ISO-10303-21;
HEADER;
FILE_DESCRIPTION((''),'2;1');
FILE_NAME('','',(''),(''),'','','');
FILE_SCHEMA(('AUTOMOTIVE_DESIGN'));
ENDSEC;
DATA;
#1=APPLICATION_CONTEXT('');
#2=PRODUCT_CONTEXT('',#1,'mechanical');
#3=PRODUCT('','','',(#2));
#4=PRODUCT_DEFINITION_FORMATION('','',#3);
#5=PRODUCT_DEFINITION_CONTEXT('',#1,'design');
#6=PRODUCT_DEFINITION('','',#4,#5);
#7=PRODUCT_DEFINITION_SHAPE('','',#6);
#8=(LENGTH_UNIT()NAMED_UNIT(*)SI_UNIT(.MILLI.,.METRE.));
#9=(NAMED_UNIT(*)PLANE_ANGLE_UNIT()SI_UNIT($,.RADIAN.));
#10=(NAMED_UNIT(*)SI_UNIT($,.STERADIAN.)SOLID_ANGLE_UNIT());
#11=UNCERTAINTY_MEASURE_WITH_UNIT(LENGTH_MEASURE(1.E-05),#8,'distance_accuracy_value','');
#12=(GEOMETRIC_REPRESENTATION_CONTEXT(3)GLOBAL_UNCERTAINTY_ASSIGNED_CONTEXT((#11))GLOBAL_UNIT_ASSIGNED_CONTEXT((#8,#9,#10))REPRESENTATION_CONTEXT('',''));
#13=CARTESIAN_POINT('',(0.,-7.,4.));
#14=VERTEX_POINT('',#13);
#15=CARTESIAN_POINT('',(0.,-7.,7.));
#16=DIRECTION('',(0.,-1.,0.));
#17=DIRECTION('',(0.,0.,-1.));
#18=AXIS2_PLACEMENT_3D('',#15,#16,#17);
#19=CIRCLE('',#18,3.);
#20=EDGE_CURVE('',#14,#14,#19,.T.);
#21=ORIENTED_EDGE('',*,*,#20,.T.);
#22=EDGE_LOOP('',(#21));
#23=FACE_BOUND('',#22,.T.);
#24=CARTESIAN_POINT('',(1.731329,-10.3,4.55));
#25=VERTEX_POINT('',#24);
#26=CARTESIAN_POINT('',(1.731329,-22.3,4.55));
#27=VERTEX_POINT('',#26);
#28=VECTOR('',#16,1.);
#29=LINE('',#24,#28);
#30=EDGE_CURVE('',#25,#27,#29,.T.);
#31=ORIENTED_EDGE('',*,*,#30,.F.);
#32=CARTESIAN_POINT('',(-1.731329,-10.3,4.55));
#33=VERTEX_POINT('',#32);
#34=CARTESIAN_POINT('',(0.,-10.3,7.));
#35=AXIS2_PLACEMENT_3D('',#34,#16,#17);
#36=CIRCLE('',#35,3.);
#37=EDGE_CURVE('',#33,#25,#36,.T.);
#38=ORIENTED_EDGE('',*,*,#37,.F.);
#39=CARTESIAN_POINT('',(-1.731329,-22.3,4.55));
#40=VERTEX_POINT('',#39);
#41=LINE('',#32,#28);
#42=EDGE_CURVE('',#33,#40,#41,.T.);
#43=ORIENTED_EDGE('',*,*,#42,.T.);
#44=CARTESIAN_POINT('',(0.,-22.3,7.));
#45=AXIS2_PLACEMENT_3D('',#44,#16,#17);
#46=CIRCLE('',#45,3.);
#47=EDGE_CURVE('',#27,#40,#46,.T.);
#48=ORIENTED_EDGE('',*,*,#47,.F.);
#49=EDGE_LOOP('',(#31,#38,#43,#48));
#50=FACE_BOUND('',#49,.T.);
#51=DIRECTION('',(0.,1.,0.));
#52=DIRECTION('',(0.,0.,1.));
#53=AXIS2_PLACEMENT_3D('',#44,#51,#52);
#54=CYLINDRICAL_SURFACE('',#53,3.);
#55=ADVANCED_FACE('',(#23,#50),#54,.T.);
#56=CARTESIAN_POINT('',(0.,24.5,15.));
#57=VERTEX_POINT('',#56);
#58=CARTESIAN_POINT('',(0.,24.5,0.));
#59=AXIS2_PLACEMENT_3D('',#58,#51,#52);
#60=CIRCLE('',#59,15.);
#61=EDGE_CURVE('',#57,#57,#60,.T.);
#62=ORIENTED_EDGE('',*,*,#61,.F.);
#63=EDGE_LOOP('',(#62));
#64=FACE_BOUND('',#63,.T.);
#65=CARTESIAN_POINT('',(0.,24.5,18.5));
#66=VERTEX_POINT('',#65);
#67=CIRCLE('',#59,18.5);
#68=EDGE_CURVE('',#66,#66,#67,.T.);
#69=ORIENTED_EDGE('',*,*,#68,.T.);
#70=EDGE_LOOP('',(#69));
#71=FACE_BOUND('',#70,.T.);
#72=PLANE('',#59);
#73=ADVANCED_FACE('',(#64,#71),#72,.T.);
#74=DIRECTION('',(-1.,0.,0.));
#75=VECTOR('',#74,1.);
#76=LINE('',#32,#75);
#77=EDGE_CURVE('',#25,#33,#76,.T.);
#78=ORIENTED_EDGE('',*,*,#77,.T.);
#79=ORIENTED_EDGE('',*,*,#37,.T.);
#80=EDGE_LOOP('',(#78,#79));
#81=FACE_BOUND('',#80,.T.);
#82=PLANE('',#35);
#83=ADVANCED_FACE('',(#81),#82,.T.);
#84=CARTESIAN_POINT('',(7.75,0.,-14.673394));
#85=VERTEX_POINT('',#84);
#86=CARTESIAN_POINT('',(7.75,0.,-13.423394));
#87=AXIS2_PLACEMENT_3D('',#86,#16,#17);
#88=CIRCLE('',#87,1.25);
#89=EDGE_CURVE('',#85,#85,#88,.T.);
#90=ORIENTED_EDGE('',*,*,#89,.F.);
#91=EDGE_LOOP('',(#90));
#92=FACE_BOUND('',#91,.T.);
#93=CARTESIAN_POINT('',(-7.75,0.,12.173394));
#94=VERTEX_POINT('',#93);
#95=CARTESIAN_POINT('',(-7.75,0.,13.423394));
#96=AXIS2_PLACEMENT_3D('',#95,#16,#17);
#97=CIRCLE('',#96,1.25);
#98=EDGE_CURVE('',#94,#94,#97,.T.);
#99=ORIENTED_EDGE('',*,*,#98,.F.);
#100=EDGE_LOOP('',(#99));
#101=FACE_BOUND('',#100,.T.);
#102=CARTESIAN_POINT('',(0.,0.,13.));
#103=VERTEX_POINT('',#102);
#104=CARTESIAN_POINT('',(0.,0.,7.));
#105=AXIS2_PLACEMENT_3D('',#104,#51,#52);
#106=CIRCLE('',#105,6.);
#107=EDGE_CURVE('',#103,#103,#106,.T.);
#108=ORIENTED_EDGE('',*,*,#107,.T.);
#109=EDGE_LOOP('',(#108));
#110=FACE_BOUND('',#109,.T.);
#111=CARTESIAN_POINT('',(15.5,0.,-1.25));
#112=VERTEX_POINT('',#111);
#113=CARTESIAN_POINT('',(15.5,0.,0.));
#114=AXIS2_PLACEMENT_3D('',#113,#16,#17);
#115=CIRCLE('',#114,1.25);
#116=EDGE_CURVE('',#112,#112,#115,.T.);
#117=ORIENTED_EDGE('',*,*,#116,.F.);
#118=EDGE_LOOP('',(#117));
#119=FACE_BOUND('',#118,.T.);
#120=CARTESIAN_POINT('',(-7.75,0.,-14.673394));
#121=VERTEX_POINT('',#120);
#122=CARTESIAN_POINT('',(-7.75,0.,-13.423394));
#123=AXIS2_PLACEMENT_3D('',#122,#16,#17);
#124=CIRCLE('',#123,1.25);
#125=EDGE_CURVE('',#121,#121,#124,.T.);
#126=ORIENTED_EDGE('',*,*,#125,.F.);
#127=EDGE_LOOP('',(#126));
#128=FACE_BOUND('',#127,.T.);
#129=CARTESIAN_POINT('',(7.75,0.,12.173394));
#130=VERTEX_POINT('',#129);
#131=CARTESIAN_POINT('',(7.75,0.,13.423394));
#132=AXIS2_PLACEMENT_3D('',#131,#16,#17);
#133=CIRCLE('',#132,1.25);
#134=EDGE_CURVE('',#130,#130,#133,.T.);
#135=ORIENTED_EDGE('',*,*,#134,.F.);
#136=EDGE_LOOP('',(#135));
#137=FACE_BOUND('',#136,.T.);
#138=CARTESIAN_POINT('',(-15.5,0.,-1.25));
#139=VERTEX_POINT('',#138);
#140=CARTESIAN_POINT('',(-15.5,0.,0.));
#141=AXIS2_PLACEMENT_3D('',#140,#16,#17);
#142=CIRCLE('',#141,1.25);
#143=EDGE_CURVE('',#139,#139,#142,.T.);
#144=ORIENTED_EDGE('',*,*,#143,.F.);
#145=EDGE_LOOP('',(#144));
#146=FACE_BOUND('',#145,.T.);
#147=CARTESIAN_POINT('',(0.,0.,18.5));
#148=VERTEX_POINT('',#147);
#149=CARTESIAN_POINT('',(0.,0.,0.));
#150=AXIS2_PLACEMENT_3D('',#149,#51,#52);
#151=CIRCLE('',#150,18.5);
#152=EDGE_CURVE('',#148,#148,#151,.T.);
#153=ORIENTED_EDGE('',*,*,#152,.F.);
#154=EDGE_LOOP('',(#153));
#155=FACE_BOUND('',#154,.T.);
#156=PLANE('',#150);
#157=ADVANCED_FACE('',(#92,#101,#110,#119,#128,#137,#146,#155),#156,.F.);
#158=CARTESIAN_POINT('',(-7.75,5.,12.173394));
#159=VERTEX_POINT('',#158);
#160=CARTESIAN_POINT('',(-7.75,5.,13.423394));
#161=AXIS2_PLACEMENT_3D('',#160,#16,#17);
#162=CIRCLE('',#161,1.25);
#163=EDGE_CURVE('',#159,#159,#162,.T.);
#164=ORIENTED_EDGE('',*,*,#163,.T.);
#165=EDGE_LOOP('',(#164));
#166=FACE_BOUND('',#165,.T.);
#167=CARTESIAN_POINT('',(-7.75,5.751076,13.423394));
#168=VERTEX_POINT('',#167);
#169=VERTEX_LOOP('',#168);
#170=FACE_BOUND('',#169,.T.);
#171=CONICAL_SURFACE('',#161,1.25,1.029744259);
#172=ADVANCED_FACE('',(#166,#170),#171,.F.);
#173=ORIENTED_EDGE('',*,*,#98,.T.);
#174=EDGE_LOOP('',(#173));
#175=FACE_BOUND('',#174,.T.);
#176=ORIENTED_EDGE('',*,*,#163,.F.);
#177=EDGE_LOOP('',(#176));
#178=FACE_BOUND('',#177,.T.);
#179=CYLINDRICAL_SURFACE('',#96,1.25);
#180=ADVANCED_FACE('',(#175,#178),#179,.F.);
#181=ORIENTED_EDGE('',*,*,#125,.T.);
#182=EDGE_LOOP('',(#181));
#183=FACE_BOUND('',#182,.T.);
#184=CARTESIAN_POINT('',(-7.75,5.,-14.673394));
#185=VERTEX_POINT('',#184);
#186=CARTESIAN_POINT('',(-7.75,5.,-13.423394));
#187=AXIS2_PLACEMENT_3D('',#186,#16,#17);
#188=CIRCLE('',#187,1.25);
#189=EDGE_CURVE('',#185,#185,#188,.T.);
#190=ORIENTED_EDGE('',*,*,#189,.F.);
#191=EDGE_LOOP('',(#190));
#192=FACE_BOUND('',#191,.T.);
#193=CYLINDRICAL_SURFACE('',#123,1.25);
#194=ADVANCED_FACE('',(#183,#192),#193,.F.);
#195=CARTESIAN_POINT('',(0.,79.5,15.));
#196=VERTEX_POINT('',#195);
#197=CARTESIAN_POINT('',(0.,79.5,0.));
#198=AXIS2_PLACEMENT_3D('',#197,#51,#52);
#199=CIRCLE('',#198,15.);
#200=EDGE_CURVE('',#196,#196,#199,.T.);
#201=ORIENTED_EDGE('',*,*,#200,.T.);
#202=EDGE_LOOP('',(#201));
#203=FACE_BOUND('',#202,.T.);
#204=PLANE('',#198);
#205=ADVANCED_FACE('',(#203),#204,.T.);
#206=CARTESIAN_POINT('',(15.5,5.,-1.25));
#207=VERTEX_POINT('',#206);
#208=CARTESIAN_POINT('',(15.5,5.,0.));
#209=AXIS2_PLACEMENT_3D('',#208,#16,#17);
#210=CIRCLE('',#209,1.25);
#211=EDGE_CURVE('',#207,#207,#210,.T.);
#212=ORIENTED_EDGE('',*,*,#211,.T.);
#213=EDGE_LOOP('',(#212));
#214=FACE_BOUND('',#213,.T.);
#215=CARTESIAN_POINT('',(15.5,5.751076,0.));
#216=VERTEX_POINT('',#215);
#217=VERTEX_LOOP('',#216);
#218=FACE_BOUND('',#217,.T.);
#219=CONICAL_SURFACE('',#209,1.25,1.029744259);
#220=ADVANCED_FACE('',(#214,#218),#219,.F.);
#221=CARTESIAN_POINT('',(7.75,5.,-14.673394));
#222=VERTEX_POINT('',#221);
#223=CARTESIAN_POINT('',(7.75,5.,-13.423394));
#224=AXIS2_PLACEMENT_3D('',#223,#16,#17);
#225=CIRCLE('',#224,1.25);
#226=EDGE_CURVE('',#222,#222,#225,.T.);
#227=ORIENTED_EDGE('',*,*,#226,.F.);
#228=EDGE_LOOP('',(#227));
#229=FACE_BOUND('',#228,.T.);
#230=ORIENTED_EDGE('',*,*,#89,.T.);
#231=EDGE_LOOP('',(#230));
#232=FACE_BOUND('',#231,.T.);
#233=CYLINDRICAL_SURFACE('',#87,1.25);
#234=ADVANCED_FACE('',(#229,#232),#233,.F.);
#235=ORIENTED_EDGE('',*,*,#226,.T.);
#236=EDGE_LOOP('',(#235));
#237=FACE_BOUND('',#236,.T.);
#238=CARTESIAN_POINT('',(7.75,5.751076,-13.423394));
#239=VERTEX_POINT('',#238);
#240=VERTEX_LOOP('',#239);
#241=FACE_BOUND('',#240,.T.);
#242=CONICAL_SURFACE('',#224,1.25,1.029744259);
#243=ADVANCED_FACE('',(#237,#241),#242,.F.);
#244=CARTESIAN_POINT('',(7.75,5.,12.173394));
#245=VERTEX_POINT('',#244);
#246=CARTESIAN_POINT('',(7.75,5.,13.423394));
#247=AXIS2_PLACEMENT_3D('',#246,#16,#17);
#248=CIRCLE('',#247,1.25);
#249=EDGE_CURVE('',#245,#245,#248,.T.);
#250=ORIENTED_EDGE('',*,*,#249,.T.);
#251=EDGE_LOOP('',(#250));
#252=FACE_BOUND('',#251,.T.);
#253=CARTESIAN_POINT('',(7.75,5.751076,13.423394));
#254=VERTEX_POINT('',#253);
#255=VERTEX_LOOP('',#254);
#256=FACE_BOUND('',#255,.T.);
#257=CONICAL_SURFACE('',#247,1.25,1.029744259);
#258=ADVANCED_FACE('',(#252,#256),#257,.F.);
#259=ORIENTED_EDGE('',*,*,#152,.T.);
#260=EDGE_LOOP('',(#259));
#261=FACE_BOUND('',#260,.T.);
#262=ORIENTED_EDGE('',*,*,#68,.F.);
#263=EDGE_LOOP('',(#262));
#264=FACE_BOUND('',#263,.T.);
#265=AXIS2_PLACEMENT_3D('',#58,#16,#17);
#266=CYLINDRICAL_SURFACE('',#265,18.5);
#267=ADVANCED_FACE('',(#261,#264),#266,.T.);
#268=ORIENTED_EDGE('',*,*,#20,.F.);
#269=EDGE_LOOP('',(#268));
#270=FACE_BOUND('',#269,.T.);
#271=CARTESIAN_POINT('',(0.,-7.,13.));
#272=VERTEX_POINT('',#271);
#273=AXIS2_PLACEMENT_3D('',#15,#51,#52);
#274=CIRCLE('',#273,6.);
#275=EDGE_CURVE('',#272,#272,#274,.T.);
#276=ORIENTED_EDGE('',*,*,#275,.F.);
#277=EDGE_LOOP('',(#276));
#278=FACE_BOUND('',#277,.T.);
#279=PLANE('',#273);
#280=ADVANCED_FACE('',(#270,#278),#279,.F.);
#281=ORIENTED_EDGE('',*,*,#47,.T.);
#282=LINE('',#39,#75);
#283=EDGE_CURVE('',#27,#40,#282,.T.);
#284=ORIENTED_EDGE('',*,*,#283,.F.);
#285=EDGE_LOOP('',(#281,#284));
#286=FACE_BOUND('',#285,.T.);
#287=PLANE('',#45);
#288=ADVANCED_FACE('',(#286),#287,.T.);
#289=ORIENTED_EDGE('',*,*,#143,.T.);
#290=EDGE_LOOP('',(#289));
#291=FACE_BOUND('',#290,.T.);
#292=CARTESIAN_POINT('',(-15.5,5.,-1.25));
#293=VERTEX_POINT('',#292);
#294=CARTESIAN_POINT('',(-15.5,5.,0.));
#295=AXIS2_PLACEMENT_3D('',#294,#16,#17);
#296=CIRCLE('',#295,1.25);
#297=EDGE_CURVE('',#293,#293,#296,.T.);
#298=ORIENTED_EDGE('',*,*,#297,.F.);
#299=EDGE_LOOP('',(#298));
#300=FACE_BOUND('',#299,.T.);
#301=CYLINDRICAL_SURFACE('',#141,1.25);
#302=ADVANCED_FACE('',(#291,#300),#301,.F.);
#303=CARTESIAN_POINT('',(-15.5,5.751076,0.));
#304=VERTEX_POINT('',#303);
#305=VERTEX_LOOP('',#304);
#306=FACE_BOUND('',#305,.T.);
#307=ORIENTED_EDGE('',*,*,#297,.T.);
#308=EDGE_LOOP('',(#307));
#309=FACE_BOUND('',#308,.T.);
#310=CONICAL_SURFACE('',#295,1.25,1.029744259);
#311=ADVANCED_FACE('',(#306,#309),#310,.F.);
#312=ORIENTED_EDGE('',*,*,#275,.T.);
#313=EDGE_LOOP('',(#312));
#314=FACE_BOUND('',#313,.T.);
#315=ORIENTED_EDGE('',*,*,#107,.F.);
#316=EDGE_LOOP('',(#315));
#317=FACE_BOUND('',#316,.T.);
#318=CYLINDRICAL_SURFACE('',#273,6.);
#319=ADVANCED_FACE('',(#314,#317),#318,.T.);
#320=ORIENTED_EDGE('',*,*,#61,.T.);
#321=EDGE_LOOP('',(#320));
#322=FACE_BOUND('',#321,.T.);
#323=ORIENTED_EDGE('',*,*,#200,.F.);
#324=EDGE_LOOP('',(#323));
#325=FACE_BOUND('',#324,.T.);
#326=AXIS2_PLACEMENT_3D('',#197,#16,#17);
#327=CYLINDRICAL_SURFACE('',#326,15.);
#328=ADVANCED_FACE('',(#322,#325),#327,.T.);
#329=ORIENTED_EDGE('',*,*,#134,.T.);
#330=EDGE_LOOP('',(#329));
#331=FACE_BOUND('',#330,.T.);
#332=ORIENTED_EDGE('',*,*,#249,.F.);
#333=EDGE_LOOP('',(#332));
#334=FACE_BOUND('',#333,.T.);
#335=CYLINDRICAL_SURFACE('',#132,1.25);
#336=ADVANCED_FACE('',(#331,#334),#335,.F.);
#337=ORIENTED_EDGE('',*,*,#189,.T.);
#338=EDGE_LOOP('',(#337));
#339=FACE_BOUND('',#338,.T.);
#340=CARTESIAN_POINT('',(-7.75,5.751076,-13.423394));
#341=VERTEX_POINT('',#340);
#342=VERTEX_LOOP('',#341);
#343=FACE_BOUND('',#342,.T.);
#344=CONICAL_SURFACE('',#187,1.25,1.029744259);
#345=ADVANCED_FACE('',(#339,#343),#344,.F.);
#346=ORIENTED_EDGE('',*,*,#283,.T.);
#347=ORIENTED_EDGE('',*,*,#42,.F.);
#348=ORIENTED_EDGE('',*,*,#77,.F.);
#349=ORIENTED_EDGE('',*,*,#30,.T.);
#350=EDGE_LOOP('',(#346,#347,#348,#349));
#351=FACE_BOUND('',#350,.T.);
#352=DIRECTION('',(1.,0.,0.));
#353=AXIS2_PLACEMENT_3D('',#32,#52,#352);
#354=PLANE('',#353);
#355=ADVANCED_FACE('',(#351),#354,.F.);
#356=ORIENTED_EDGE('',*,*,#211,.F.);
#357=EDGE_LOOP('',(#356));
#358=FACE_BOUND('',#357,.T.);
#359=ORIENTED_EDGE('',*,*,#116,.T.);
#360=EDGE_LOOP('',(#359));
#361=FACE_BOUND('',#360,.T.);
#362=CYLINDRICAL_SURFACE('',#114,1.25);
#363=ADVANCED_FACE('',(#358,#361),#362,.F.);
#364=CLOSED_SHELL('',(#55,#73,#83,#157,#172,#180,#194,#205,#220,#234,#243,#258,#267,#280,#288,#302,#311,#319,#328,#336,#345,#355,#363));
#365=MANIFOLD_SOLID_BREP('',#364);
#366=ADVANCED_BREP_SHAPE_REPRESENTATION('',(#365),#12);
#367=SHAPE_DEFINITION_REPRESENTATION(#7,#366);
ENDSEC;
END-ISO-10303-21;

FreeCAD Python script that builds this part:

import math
import FreeCAD as App
import Part
import Sketcher

V = App.Vector
Q = App.Units.Quantity


def add_polygon(sketch, points):
    """Adds a closed chain of lines whose ends are joined by coincident constraints."""
    first, n = sketch.GeometryCount, len(points)
    for a, b in zip(points, points[1:] + points[:1]):
        sketch.addGeometry(Part.LineSegment(App.Vector(*a, 0), App.Vector(*b, 0)), False)
    for i in range(n):
        sketch.addConstraint(Sketcher.Constraint("Coincident", first + i, 2, first + (i + 1) % n, 1))

doc = App.newDocument("Part")
body = doc.addObject("PartDesign::Body", "Body")

# Sketch on XZ plane
sketch1 = body.newObject("Sketcher::SketchObject", "Sketch")
sketch1.AttachmentSupport = (doc.getObject("XZ_Plane"), [""])
sketch1.MapMode = "FlatFace"
sketch1.addGeometry(Part.Circle(V(0, 0, 0), V(0, 0, 1), 18), False)
sketch1.addConstraint([
    Sketcher.Constraint("Coincident", 0, 3, -1, 1),
    Sketcher.Constraint("Diameter", 0, 37.0),
])
pad1 = body.newObject("PartDesign::Pad", "Pad")
pad1.Profile = sketch1
pad1.Length = 24.5
pad1.Reversed = True

# Sketch on XZ plane
sketch2 = body.newObject("Sketcher::SketchObject", "Sketch001")
sketch2.AttachmentSupport = (doc.getObject("XZ_Plane"), [""])
sketch2.MapMode = "FlatFace"
sketch2.AttachmentOffset = App.Placement(V(0, 0, -24.5), App.Rotation())
sketch2.addGeometry(Part.Circle(V(0, 0, 0), V(0, 0, 1), 15), False)
sketch2.addConstraint([
    Sketcher.Constraint("Coincident", 0, 3, -1, 1),
    Sketcher.Constraint("Diameter", 0, 30.0),
])
pad2 = body.newObject("PartDesign::Pad", "Pad001")
pad2.Profile = sketch2
pad2.Length = 55
pad2.Reversed = True

# Sketch on XZ plane
sketch3 = body.newObject("Sketcher::SketchObject", "Sketch002")
sketch3.AttachmentSupport = (doc.getObject("XZ_Plane"), [""])
sketch3.MapMode = "FlatFace"
sketch3.addGeometry(Part.Circle(V(0, 7, 0), V(0, 0, 1), 6), False)
sketch3.addConstraint([
    Sketcher.Constraint("PointOnObject", 0, 3, -2),
    Sketcher.Constraint("Diameter", 0, 12.0),
    Sketcher.Constraint("DistanceY", -1, 1, 0, 3, 7.0),
])
pad3 = body.newObject("PartDesign::Pad", "Pad002")
pad3.Profile = sketch3
pad3.Length = 7

# Sketch on XZ plane
sketch4 = body.newObject("Sketcher::SketchObject", "Sketch003")
sketch4.AttachmentSupport = (doc.getObject("XZ_Plane"), [""])
sketch4.MapMode = "FlatFace"
sketch4.AttachmentOffset = App.Placement(V(0, 0, 7), App.Rotation())
sketch4.addGeometry(Part.Circle(V(0, 7, 0), V(0, 0, 1), 3), False)
sketch4.addConstraint([
    Sketcher.Constraint("PointOnObject", 0, 3, -2),
    Sketcher.Constraint("Diameter", 0, 6.0),
    Sketcher.Constraint("DistanceY", -1, 1, 0, 3, 7.0),
])
pad4 = body.newObject("PartDesign::Pad", "Pad003")
pad4.Profile = sketch4
pad4.Length = 15.3

# Sketch on XZ plane
sketch5 = body.newObject("Sketcher::SketchObject", "Sketch004")
sketch5.AttachmentSupport = (doc.getObject("XZ_Plane"), [""])
sketch5.MapMode = "FlatFace"
sketch5.AttachmentOffset = App.Placement(V(0, 0, 10.3), App.Rotation())
sketch5.addGeometry([
    Part.LineSegment(V(1.7, 4.5, 0), V(-1.7, 4.5, 0)),
    Part.ArcOfCircle(Part.Circle(V(0, 7, 0), V(0, 0, 1), 3), math.radians(-125), math.radians(-55)),
], False)
sketch5.addConstraint([
    Sketcher.Constraint("Coincident", 0, 1, 1, 2),
    Sketcher.Constraint("Coincident", 1, 1, 0, 2),
    Sketcher.Constraint("Horizontal", 0),
    Sketcher.Constraint("PointOnObject", 1, 3, -2),
    Sketcher.Constraint("Radius", 1, 3.0),
    Sketcher.Constraint("DistanceY", -1, 1, 1, 3, 7.0),
    Sketcher.Constraint("DistanceY", -1, 1, 0, 1, 4.55),
])
pocket1 = body.newObject("PartDesign::Pocket", "Pocket")
pocket1.Profile = sketch5
pocket1.Length = 12
pocket1.Reversed = True

# Sketch on YZ plane
sketch6 = body.newObject("Sketcher::SketchObject", "Sketch005")
sketch6.AttachmentSupport = (doc.getObject("YZ_Plane"), [""])
sketch6.MapMode = "FlatFace"
sketch6.AttachmentOffset = App.Placement(V(0, 0, 15.5), App.Rotation())
add_polygon(sketch6, [(5.8, 0), (0, 0), (0, -1.2), (5, -1.2)])  # lines 0-3
sketch6.addConstraint([
    Sketcher.Constraint("Horizontal", 0),
    Sketcher.Constraint("Vertical", 1),
    Sketcher.Constraint("Horizontal", 2),
    Sketcher.Constraint("Coincident", 0, 2, -1, 1),
    Sketcher.Constraint("DistanceX", 2, 1, 2, 2, 5.0),
    Sketcher.Constraint("Angle", 3, Q("59 deg")),
    Sketcher.Constraint("DistanceY", 1, 2, 1, 1, 1.25),
])
groove = body.newObject("PartDesign::Groove", "Groove")
groove.Profile = sketch6
groove.ReferenceAxis = (sketch6, ["H_Axis"])
groove.Angle = 360
doc.recompute()

polarpattern = body.newObject("PartDesign::PolarPattern", "PolarPattern")
polarpattern.Originals = [groove]
polarpattern.Axis = (doc.getObject("Y_Axis"), [""])
polarpattern.Angle = 360
polarpattern.Occurrences = 6
body.Tip = polarpattern

doc.recompute()
